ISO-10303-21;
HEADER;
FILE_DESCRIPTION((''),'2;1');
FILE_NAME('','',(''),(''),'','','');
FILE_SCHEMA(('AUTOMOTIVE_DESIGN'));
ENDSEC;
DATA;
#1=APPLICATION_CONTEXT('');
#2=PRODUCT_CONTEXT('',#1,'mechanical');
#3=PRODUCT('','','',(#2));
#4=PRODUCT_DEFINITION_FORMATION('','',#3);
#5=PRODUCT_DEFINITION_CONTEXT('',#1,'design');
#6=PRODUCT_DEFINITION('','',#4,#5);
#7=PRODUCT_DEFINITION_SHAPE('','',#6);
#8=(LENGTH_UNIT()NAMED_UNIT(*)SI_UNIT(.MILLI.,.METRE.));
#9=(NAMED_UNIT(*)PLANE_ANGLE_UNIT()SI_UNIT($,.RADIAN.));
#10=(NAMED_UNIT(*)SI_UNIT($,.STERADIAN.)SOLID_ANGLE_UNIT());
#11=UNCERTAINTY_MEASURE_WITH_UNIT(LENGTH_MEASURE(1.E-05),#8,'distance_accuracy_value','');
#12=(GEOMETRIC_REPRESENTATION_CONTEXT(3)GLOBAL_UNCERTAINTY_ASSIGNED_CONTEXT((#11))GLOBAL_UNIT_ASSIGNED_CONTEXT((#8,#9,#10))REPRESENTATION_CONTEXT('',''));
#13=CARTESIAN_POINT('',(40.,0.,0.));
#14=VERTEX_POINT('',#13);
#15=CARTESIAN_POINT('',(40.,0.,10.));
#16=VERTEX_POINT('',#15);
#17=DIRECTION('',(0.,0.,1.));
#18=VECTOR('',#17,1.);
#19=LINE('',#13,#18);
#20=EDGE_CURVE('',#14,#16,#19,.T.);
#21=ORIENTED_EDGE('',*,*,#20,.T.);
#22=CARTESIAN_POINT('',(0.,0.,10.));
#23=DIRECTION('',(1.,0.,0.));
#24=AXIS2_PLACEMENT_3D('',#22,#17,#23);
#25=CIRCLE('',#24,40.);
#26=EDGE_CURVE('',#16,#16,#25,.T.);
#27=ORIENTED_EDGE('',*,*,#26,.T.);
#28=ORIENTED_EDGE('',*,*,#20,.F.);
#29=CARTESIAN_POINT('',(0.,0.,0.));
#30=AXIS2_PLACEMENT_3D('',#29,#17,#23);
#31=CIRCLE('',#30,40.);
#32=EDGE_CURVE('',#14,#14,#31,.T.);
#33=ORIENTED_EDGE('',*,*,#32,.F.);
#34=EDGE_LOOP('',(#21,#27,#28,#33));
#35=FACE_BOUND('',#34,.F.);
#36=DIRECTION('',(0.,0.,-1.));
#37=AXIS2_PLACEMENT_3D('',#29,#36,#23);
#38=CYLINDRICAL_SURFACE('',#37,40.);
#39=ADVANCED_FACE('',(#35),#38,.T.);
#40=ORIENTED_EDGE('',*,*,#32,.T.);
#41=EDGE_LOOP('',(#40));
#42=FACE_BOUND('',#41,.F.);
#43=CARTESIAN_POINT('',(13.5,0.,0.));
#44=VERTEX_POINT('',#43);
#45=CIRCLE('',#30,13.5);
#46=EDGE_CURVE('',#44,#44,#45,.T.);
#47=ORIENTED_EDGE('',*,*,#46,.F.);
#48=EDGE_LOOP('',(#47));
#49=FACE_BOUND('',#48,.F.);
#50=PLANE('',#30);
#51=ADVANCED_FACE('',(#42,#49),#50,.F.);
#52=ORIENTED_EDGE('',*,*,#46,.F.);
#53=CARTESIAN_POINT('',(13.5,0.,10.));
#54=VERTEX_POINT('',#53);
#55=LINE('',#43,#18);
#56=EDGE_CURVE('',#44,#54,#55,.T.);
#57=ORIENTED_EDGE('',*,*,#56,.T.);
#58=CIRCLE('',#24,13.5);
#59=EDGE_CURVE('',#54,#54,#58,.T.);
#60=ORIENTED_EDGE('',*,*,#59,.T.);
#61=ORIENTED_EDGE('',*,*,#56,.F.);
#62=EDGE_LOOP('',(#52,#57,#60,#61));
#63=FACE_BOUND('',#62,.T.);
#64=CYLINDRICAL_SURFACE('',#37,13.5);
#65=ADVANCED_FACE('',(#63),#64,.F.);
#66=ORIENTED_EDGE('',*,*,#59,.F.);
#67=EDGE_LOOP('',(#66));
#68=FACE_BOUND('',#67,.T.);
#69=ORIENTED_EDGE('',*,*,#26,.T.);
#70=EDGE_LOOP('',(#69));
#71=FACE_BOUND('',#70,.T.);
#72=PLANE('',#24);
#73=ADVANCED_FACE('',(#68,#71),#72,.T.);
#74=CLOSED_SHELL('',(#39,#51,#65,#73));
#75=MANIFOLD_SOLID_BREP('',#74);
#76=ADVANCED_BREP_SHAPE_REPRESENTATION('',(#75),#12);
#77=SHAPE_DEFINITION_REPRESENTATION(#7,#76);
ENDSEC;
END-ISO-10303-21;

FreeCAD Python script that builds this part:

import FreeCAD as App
import Part
import Sketcher
from FreeCAD import Vector
Q = App.Units.Quantity

doc = App.newDocument("Part")
body = doc.addObject("PartDesign::Body", "Body")

# Sketch on XY plane
sketch1 = body.newObject("Sketcher::SketchObject", "Sketch")
sketch1.AttachmentSupport = (doc.getObject("XY_Plane"), [""])
sketch1.MapMode = "FlatFace"
sketch1.addGeometry(Part.Circle(Vector(0, 0, 0), Vector(0, 0, 1), 40), False)
sketch1.addGeometry(Part.Circle(Vector(0, 0, 0), Vector(0, 0, 1), 14), False)
sketch1.addConstraint(Sketcher.Constraint("Coincident", 0, 3, -1, 1))
sketch1.addConstraint(Sketcher.Constraint("Coincident", 1, 3, -1, 1))
sketch1.addConstraint(Sketcher.Constraint("Diameter", 0, Q("80 mm")))
sketch1.addConstraint(Sketcher.Constraint("Diameter", 1, Q("27 mm")))
pad1 = body.newObject("PartDesign::Pad", "Pad")
pad1.Profile = sketch1
pad1.Length = 10

doc.recompute()
